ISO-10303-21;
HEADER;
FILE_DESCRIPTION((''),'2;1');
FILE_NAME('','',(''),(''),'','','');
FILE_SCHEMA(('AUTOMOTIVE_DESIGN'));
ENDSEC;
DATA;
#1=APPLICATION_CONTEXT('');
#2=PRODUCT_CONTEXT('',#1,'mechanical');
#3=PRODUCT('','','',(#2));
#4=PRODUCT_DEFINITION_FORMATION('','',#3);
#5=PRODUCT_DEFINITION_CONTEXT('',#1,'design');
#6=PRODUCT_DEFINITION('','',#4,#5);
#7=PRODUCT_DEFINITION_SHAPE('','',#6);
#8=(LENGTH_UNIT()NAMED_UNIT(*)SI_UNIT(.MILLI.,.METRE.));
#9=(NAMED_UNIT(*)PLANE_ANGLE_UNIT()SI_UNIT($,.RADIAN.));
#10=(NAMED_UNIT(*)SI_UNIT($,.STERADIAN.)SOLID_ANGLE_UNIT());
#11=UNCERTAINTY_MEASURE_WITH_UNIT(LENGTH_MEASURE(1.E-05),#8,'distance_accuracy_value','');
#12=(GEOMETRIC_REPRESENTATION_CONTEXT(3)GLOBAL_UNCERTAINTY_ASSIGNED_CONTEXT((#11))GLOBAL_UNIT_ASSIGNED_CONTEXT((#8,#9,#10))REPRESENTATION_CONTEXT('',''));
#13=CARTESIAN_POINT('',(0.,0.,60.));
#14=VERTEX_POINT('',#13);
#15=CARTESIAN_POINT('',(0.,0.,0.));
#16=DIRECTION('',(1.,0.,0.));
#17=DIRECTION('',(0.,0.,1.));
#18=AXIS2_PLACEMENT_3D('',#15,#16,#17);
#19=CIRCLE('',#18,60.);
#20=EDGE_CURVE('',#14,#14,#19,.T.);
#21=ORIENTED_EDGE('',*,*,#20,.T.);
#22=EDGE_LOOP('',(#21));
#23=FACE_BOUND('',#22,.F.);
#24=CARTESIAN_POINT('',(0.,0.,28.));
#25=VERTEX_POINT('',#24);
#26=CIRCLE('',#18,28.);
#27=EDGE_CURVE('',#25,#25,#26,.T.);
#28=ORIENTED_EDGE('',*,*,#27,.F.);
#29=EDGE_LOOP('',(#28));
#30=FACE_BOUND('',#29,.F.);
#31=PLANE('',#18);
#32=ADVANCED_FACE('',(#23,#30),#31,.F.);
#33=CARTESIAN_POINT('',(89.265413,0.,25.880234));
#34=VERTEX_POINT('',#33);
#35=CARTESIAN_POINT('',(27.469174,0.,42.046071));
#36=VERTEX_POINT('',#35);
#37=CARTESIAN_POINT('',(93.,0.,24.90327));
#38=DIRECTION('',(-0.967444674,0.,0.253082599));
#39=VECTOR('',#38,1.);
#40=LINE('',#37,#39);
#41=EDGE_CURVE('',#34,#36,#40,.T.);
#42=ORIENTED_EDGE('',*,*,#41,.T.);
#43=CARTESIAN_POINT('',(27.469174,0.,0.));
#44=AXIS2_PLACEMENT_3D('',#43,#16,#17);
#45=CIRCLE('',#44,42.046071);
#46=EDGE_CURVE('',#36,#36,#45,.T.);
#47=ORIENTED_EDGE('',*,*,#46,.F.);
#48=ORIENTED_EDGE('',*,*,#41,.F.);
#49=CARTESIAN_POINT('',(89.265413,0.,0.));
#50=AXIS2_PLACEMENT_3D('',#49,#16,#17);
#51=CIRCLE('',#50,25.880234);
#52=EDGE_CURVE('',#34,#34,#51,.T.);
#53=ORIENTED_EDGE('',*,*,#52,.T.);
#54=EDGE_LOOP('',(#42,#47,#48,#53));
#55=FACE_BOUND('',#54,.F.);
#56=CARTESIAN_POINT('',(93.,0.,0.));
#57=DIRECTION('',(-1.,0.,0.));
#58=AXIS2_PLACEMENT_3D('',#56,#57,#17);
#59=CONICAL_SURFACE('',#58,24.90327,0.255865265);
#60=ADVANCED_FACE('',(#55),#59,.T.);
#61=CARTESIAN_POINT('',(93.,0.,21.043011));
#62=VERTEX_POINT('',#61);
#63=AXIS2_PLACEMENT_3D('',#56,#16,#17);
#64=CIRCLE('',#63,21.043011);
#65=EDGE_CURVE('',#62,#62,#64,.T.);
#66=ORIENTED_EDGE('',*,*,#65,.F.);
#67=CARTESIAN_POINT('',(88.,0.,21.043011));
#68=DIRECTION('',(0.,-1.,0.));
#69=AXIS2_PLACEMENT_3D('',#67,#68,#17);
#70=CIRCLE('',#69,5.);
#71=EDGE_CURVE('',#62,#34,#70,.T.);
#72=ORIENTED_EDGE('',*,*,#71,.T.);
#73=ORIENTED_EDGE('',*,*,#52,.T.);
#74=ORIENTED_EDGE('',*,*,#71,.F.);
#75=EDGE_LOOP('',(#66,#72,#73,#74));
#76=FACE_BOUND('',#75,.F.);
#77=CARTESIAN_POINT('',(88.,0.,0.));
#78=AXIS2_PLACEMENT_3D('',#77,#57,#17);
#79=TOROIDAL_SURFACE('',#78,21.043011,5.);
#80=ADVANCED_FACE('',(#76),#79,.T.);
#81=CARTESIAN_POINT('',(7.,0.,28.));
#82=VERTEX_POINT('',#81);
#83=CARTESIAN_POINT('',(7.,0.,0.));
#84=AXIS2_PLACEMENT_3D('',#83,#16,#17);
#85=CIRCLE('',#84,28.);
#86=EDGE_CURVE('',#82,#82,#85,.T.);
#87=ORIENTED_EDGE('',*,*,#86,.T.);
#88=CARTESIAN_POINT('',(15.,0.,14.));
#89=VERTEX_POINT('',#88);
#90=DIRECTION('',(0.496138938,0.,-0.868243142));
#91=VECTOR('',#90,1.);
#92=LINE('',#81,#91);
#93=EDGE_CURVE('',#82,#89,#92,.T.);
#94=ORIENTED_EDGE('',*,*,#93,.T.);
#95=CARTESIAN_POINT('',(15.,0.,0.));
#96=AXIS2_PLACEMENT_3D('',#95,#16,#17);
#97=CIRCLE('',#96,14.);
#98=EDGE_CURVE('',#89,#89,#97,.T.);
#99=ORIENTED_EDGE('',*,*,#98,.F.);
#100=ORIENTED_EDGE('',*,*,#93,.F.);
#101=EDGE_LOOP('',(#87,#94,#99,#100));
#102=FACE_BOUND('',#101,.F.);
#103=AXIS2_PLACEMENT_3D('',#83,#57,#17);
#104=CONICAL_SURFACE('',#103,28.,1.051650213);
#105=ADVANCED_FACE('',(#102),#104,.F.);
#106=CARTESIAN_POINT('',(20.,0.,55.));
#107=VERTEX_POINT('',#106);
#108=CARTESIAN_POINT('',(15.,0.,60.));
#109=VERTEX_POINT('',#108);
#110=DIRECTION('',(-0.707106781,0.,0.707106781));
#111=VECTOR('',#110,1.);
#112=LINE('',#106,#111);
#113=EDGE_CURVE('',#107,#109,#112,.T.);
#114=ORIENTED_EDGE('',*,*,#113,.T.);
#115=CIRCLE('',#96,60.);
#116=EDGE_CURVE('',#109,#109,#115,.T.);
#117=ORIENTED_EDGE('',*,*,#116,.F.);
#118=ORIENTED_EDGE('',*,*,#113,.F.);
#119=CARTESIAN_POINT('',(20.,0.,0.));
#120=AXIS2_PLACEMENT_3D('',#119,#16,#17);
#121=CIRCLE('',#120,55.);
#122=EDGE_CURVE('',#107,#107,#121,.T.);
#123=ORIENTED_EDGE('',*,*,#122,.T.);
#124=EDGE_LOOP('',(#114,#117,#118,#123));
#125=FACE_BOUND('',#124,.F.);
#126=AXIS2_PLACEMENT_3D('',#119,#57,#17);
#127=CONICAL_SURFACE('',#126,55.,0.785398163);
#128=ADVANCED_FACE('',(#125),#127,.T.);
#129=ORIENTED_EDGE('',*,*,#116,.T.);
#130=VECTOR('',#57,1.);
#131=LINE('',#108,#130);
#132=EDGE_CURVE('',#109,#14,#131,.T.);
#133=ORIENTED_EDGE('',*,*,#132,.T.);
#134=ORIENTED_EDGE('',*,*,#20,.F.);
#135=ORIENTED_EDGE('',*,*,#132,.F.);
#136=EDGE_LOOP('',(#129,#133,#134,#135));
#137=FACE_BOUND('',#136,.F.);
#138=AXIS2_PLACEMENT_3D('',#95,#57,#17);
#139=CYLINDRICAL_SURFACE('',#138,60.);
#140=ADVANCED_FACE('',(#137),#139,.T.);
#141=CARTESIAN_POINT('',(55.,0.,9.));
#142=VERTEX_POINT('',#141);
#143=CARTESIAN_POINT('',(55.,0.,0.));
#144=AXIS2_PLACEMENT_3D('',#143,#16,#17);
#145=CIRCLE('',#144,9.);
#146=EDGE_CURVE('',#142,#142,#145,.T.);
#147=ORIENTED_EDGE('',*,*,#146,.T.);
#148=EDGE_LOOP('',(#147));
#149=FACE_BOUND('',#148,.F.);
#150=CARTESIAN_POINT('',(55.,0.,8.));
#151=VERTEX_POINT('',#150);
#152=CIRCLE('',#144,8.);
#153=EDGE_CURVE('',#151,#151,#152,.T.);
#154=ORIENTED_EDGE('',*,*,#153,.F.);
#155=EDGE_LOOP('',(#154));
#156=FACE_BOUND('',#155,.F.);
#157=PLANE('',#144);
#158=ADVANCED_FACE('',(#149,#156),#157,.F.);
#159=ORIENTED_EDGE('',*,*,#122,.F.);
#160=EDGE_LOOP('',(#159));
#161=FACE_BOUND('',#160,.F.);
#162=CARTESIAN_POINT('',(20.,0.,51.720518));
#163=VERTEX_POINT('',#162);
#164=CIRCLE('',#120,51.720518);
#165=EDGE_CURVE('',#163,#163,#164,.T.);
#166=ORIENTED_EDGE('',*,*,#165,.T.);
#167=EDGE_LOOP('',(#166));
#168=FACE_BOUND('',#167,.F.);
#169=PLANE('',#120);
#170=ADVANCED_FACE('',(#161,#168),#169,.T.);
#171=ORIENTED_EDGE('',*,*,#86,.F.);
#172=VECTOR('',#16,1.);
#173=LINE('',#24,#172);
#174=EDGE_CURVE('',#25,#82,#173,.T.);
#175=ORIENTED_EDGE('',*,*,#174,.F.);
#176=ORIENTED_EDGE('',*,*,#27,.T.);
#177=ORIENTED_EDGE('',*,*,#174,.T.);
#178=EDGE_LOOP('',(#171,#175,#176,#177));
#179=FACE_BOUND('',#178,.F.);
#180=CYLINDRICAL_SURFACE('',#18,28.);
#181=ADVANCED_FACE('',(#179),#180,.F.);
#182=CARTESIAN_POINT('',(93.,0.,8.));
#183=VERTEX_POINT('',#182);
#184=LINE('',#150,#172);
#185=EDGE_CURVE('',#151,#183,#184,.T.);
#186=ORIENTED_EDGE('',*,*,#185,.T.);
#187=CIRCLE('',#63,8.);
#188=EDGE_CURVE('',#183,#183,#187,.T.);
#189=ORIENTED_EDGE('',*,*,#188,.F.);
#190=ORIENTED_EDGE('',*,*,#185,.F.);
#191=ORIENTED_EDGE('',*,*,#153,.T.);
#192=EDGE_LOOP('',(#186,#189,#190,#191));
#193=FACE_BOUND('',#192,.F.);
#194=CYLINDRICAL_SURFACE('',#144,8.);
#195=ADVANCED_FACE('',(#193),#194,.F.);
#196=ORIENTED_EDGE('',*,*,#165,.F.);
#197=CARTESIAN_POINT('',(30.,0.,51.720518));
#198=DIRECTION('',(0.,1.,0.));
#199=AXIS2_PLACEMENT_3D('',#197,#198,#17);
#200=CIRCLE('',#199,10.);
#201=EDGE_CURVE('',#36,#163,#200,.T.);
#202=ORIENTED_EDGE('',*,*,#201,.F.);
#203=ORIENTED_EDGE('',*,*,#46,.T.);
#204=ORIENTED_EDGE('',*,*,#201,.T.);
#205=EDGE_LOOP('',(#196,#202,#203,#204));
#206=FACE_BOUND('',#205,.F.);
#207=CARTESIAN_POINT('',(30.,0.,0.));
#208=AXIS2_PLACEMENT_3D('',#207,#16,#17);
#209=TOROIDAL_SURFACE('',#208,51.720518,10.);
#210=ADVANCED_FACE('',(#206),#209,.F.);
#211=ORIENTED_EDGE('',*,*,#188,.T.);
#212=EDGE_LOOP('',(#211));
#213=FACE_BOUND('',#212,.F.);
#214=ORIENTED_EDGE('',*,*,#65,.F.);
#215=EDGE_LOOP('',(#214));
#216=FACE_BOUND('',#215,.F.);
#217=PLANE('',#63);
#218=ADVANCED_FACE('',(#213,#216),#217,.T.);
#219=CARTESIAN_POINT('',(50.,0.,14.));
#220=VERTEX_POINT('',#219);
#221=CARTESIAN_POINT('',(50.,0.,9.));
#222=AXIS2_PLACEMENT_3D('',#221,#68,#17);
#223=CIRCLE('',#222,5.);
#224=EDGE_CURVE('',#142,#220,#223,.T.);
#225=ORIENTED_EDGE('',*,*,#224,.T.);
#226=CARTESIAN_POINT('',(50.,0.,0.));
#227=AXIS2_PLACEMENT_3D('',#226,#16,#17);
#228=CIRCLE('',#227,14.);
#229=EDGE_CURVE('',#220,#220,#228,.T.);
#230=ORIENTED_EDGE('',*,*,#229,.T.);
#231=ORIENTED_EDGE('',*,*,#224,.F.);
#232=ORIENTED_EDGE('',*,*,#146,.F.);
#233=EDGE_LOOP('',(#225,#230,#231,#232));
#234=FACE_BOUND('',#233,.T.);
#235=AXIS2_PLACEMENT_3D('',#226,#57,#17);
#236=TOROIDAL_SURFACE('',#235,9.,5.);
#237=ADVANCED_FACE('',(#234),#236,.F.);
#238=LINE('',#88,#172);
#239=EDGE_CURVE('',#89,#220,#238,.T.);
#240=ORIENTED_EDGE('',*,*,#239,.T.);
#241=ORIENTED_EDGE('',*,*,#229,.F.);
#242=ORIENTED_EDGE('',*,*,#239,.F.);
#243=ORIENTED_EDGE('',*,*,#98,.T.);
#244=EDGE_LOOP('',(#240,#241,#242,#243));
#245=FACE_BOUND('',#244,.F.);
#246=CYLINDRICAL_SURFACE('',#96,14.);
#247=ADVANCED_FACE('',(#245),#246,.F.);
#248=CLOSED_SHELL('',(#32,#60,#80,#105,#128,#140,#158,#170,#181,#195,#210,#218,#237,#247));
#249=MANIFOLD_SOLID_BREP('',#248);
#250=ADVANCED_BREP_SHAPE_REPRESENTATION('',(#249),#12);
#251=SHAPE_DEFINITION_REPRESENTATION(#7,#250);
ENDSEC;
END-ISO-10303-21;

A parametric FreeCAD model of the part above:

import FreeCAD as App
import Part
import Sketcher

V = App.Vector
Q = App.Units.Quantity


def edges_at(feature, points):
    """Names of the edges that pass closest to the given points."""
    edges = feature.Shape.Edges
    near = lambda p: min(range(len(edges)), key=lambda i: edges[i].distToShape(Part.Vertex(*p))[0])
    return sorted({f"Edge{near(p) + 1}" for p in points})

doc = App.newDocument("Part")
body = doc.addObject("PartDesign::Body", "Body")

# Sketch on XZ plane
sketch1 = doc.addObject("Sketcher::SketchObject", "Sketch")
body.addObject(sketch1)
sketch1.AttachmentSupport = (doc.XZ_Plane, [""])
sketch1.MapMode = "FlatFace"
sketch1.addGeometry([
    Part.LineSegment(V(55, 8, 0), V(93, 8, 0)),  # 0
    Part.LineSegment(V(93, 8, 0), V(93, 24.90327, 0)),  # 1
    Part.LineSegment(V(93, 24.90327, 0), V(20, 44, 0)),  # 2
    Part.LineSegment(V(20, 44, 0), V(20, 55, 0)),  # 3
    Part.LineSegment(V(20, 55, 0), V(15, 60, 0)),  # 4
    Part.LineSegment(V(15, 60, 0), V(0, 60, 0)),  # 5
    Part.LineSegment(V(0, 60, 0), V(0, 28, 0)),  # 6
    Part.LineSegment(V(0, 28, 0), V(7, 28, 0)),  # 7
    Part.LineSegment(V(7, 28, 0), V(15, 14, 0)),  # 8
    Part.LineSegment(V(15, 14, 0), V(55, 14, 0)),  # 9
    Part.LineSegment(V(55, 14, 0), V(55, 8, 0)),  # 10
], False)
sketch1.addConstraint([
    Sketcher.Constraint("Coincident", 0, 2, 1, 1),
    Sketcher.Constraint("Coincident", 1, 2, 2, 1),
    Sketcher.Constraint("Coincident", 2, 2, 3, 1),
    Sketcher.Constraint("Coincident", 3, 2, 4, 1),
    Sketcher.Constraint("Coincident", 4, 2, 5, 1),
    Sketcher.Constraint("Coincident", 5, 2, 6, 1),
    Sketcher.Constraint("Coincident", 6, 2, 7, 1),
    Sketcher.Constraint("Coincident", 7, 2, 8, 1),
    Sketcher.Constraint("Coincident", 8, 2, 9, 1),
    Sketcher.Constraint("Coincident", 9, 2, 10, 1),
    Sketcher.Constraint("Coincident", 10, 2, 0, 1),
    Sketcher.Constraint("Horizontal", 0),
    Sketcher.Constraint("Vertical", 1),
    Sketcher.Constraint("Vertical", 3),
    Sketcher.Constraint("Horizontal", 5),
    Sketcher.Constraint("Vertical", 6),
    Sketcher.Constraint("Horizontal", 7),
    Sketcher.Constraint("Horizontal", 9),
    Sketcher.Constraint("Vertical", 10),
    Sketcher.Constraint("PointOnObject", 5, 2, -2),
    Sketcher.Constraint("Vertical", 4, 2, 8, 2),
    Sketcher.Constraint("DistanceX", 0, 1, 0, 2, 38.0),
    Sketcher.Constraint("DistanceX", 5, 2, 5, 1, 15.0),
    Sketcher.Constraint("DistanceX", 7, 1, 7, 2, 7.0),
    Sketcher.Constraint("DistanceX", 9, 1, 9, 2, 40.0),
    Sketcher.Constraint("DistanceY", 3, 1, 3, 2, 11.0),
    Sketcher.Constraint("DistanceY", 6, 2, 6, 1, 32.0),
    Sketcher.Constraint("DistanceY", 10, 2, 10, 1, 6.0),
    Sketcher.Constraint("Angle", 4, Q("135 deg")),
    Sketcher.Constraint("DistanceY", -1, 1, 0, 2, 8.0),
    Sketcher.Constraint("DistanceX", -1, 1, 2, 2, 20.0),
    Sketcher.Constraint("DistanceY", -1, 1, 2, 2, 44.0),
    Sketcher.Constraint("Angle", 2, Q("165.34 deg")),
])
revolution = doc.addObject("PartDesign::Revolution", "Revolution")
body.addObject(revolution)
revolution.Profile = sketch1
revolution.ReferenceAxis = (sketch1, ["H_Axis"])
revolution.Angle = 360
doc.recompute()

fillet = doc.addObject("PartDesign::Fillet", "Fillet")
body.addObject(fillet)
fillet.Base = (revolution, edges_at(revolution, [(93, 0, -24.903)]))
fillet.Radius = 5
doc.recompute()

fillet2 = doc.addObject("PartDesign::Fillet", "Fillet001")
body.addObject(fillet2)
fillet2.Base = (fillet, edges_at(fillet, [(20, 0, -44)]))
fillet2.Radius = 10
doc.recompute()

fillet3 = doc.addObject("PartDesign::Fillet", "Fillet002")
body.addObject(fillet3)
fillet3.Base = (fillet2, edges_at(fillet2, [(55, 0, -14)]))
fillet3.Radius = 5

doc.recompute()
